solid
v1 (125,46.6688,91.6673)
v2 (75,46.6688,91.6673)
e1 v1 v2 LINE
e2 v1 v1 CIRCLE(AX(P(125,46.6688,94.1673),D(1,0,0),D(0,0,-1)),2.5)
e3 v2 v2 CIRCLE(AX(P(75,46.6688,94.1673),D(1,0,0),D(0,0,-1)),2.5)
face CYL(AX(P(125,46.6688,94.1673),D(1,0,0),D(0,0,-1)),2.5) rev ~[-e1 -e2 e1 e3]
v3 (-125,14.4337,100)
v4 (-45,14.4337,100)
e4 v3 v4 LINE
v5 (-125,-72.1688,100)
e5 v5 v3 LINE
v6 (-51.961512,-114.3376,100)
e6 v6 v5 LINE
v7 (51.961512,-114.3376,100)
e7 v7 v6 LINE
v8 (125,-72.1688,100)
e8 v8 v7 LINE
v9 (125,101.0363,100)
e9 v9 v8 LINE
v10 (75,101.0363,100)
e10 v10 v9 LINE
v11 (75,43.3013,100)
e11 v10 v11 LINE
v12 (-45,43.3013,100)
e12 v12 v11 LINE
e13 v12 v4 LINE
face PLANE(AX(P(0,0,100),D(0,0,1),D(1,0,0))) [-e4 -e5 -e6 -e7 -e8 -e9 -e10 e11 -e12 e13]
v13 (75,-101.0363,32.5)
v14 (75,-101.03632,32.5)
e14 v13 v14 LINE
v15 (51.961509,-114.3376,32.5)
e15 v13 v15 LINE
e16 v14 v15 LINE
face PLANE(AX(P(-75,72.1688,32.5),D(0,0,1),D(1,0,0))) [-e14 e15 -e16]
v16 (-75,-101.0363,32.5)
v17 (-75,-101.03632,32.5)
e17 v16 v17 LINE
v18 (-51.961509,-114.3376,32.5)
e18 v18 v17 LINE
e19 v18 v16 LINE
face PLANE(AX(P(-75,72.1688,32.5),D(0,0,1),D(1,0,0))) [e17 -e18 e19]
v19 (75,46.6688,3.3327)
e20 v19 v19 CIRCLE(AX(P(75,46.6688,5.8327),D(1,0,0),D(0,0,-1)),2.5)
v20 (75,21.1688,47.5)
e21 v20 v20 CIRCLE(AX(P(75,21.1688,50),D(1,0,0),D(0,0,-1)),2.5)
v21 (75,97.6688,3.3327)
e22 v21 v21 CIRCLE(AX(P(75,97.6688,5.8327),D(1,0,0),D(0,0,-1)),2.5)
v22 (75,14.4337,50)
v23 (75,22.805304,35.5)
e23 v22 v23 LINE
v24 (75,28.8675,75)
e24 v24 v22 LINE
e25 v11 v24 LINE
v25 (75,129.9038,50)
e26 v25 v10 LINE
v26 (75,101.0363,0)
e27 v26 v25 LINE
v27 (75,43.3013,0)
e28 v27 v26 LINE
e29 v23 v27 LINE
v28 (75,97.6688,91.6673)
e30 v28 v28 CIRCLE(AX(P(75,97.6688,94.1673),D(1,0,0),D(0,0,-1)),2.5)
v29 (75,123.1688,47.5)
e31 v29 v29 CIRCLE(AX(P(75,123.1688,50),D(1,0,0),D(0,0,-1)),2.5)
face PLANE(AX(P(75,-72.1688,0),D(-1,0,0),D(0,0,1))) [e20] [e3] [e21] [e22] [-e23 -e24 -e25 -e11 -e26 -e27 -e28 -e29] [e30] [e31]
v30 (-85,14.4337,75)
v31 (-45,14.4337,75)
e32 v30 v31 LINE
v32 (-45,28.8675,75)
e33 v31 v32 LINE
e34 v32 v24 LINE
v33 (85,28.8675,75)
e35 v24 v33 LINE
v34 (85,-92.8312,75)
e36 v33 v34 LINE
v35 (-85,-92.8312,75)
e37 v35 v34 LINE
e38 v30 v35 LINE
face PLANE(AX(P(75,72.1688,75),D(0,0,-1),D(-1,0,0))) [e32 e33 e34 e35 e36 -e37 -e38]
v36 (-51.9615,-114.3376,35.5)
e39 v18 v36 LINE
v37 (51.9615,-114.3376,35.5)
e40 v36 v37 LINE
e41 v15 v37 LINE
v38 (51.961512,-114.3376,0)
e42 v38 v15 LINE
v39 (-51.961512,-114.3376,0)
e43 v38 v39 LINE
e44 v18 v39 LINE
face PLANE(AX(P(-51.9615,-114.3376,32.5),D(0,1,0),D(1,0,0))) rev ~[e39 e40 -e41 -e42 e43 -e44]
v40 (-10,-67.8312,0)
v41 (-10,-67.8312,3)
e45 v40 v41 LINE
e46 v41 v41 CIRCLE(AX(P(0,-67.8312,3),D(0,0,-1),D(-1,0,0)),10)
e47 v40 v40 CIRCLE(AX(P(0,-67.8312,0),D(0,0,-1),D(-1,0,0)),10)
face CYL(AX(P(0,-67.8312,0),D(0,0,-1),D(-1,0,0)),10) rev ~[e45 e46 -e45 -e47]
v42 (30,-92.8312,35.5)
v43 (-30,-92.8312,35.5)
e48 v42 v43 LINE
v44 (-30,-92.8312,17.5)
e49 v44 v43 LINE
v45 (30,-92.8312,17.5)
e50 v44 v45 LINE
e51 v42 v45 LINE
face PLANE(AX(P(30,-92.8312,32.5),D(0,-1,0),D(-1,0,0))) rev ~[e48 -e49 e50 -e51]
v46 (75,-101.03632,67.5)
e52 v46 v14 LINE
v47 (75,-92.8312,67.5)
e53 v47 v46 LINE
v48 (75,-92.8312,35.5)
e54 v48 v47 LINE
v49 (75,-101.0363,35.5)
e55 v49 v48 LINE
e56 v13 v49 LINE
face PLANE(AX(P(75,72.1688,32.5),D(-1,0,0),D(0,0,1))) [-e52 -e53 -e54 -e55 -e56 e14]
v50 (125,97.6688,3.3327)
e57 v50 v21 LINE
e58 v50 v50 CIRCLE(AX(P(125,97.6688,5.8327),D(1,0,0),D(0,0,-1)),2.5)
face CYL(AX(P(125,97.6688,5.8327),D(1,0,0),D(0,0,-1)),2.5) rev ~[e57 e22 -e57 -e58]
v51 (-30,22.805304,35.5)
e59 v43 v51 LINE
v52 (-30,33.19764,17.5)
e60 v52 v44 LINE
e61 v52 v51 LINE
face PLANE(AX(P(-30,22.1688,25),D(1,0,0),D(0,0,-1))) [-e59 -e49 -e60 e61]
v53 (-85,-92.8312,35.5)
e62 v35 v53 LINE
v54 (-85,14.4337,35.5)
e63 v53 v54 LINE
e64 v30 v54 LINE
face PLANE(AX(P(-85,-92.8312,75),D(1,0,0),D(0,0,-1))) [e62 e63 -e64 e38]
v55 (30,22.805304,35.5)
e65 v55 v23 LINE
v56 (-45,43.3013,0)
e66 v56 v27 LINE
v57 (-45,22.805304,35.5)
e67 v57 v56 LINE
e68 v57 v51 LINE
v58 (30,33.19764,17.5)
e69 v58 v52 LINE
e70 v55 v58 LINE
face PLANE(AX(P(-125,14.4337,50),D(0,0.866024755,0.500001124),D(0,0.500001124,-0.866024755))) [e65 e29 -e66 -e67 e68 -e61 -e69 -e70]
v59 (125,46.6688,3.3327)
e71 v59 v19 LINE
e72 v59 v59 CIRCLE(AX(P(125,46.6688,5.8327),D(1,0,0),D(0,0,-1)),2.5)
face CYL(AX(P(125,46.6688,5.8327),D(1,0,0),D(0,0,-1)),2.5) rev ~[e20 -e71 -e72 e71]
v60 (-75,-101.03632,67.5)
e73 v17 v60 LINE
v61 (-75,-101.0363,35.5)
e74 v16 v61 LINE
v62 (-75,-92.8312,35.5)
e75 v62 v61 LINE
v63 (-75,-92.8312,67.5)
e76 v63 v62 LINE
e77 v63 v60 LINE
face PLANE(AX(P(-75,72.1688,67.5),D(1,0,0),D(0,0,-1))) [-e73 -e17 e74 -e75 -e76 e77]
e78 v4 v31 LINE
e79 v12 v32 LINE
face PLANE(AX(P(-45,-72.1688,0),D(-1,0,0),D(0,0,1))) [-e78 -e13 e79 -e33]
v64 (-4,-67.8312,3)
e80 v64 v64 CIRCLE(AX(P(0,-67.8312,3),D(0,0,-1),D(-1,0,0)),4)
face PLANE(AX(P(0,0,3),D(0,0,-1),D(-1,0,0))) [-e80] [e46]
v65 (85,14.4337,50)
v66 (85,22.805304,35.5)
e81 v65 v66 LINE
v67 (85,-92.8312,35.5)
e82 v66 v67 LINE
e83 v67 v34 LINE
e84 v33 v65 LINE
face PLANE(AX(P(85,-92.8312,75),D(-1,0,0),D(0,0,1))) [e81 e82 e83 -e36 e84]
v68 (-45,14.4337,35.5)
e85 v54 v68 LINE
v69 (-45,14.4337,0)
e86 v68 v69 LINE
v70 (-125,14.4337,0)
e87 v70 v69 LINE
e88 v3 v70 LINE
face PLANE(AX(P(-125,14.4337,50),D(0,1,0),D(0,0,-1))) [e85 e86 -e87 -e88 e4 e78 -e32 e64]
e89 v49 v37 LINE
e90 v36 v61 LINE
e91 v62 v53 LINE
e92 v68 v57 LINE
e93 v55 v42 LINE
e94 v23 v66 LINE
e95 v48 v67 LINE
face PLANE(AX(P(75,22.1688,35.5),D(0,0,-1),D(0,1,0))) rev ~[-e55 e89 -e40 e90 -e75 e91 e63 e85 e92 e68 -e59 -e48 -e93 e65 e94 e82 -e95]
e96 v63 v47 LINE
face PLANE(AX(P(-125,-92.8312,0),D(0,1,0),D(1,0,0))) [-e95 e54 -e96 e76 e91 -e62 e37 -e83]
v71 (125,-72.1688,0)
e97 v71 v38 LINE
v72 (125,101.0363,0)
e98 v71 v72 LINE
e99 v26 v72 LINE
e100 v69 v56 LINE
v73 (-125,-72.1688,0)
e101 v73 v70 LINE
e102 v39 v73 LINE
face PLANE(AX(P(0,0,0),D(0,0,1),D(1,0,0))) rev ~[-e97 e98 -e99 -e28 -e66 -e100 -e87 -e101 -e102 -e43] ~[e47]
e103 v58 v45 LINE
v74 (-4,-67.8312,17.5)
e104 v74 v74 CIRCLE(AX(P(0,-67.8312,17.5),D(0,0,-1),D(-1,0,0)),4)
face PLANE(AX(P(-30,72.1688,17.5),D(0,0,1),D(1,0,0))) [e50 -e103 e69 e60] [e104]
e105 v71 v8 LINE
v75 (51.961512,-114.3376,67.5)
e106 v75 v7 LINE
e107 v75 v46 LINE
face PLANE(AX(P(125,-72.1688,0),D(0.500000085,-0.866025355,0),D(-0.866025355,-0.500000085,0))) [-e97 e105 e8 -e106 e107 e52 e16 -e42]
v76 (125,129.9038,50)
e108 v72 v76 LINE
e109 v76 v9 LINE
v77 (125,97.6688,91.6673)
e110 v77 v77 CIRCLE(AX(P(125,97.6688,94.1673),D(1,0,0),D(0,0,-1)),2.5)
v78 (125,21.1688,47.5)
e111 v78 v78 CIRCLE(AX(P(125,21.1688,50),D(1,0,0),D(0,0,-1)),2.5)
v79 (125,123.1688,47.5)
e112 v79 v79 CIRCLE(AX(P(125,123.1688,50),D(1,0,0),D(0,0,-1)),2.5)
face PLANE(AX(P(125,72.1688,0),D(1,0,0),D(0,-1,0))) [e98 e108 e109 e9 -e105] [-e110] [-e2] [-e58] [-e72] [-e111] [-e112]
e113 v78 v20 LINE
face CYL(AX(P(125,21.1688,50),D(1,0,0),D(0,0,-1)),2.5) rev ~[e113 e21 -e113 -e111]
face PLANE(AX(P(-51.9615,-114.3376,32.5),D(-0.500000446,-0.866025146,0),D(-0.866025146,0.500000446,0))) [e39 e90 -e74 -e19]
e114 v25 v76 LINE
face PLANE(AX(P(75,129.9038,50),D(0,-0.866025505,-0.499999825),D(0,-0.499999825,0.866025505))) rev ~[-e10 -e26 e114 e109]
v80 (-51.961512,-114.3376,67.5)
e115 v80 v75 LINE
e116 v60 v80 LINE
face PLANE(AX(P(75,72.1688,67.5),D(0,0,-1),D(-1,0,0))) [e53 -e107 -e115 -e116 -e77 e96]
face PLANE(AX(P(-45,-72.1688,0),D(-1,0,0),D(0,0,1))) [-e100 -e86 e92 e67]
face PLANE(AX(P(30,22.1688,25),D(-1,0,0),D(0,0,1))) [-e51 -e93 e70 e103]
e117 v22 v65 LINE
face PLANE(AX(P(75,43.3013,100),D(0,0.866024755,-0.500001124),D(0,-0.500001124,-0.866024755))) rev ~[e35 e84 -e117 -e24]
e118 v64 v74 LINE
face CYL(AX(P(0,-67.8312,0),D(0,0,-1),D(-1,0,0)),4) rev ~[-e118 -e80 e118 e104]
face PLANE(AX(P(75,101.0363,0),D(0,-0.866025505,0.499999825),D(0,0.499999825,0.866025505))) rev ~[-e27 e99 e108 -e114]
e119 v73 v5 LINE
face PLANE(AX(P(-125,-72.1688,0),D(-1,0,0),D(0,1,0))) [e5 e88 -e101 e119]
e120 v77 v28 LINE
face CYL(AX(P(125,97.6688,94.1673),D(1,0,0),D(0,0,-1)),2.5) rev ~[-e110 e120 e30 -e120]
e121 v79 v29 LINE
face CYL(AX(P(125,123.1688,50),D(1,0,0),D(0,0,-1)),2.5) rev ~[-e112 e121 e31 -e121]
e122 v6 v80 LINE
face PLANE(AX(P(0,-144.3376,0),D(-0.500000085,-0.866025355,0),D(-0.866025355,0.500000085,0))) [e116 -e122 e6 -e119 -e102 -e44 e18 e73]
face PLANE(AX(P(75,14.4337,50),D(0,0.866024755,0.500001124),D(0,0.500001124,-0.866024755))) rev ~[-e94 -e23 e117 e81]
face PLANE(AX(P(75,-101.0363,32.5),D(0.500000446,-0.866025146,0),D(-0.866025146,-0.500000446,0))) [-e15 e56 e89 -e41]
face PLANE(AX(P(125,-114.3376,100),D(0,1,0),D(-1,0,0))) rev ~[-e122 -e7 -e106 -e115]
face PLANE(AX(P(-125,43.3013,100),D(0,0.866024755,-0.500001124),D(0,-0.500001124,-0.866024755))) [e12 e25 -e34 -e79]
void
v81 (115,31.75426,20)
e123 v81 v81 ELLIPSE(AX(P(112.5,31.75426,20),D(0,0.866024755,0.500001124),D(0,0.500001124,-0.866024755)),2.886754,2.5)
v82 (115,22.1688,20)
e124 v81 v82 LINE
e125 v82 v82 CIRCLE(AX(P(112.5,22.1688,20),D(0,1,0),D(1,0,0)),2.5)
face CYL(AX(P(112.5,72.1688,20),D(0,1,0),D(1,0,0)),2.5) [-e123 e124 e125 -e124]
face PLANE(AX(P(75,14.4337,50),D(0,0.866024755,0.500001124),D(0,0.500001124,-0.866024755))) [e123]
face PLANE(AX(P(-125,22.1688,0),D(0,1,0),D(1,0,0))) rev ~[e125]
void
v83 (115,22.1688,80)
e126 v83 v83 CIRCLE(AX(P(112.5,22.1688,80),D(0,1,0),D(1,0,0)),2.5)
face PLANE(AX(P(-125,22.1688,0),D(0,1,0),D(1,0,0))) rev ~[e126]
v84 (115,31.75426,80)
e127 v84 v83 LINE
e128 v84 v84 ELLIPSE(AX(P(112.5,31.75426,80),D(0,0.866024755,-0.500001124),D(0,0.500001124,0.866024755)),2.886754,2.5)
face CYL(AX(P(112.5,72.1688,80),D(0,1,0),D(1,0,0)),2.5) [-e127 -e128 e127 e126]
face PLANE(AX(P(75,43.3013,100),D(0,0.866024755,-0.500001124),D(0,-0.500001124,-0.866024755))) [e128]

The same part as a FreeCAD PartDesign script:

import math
import FreeCAD as App
import Part
import Sketcher
Q = App.Units.Quantity

doc = App.newDocument("Part")
body = doc.addObject("PartDesign::Body", "Body")

# Sketch on XY plane
sketch1 = doc.addObject("Sketcher::SketchObject", "Sketch")
body.addObject(sketch1)
sketch1.AttachmentSupport = (doc.XY_Plane, [""])
sketch1.MapMode = "FlatFace"
sketch1.addGeometry([
    Part.LineSegment(App.Vector(-125, -72, 0), App.Vector(0, -144, 0)),  # 0
    Part.LineSegment(App.Vector(0, -144, 0), App.Vector(125, -72, 0)),  # 1
    Part.LineSegment(App.Vector(125, -72, 0), App.Vector(125, 72, 0)),  # 2
    Part.LineSegment(App.Vector(125, 72, 0), App.Vector(-125, 72, 0)),  # 3
    Part.LineSegment(App.Vector(-125, 72, 0), App.Vector(-125, -72, 0)),  # 4
], False)
sketch1.addConstraint([
    Sketcher.Constraint("Coincident", 0, 2, 1, 1),
    Sketcher.Constraint("Coincident", 1, 2, 2, 1),
    Sketcher.Constraint("Coincident", 2, 2, 3, 1),
    Sketcher.Constraint("Coincident", 3, 2, 4, 1),
    Sketcher.Constraint("Coincident", 4, 2, 0, 1),
    Sketcher.Constraint("Vertical", 2),
    Sketcher.Constraint("Horizontal", 3),
    Sketcher.Constraint("Vertical", 4),
    Sketcher.Constraint("Symmetric", 1, 2, 3, 2, -1, 1),
    Sketcher.Constraint("PointOnObject", 0, 2, -2),
    Sketcher.Constraint("Horizontal", 1, 2, 4, 2),
    Sketcher.Constraint("DistanceX", 3, 2, 3, 1, 250.0),
    Sketcher.Constraint("Angle", 0, Q("-30 deg")),
    Sketcher.Constraint("DistanceY", 2, 1, 2, 2, 144.3376),
])
pad1 = doc.addObject("PartDesign::Pad", "Pad")
body.addObject(pad1)
pad1.Profile = sketch1
pad1.Length = 100

# Sketch on XZ plane
sketch2 = doc.addObject("Sketcher::SketchObject", "Sketch001")
body.addObject(sketch2)
sketch2.AttachmentSupport = (doc.XZ_Plane, [""])
sketch2.MapMode = "FlatFace"
sketch2.AttachmentOffset = App.Placement(App.Vector(0, 0, -72.1688), App.Rotation())
sketch2.addGeometry([
    Part.LineSegment(App.Vector(-75, 68, 0), App.Vector(75, 68, 0)),
    Part.LineSegment(App.Vector(75, 68, 0), App.Vector(75, 32, 0)),
    Part.LineSegment(App.Vector(75, 32, 0), App.Vector(-75, 32, 0)),
    Part.LineSegment(App.Vector(-75, 32, 0), App.Vector(-75, 68, 0)),
], False)
sketch2.addConstraint([
    Sketcher.Constraint("Coincident", 0, 2, 1, 1),
    Sketcher.Constraint("Coincident", 1, 2, 2, 1),
    Sketcher.Constraint("Coincident", 2, 2, 3, 1),
    Sketcher.Constraint("Coincident", 3, 2, 0, 1),
    Sketcher.Constraint("Horizontal", 0),
    Sketcher.Constraint("Vertical", 1),
    Sketcher.Constraint("Horizontal", 2),
    Sketcher.Constraint("Vertical", 3),
    Sketcher.Constraint("DistanceX", 0, 1, 0, 2, 150.0),
    Sketcher.Constraint("DistanceY", 1, 2, 1, 1, 35.0),
    Sketcher.Constraint("DistanceX", -1, 1, 0, 2, 75.0),
    Sketcher.Constraint("DistanceY", -1, 1, 0, 2, 67.5),
])
pocket1 = doc.addObject("PartDesign::Pocket", "Pocket")
body.addObject(pocket1)
pocket1.Profile = sketch2
pocket1.Type = "ThroughAll"
pocket1.Reversed = True

# Sketch on XY plane
sketch3 = doc.addObject("Sketcher::SketchObject", "Sketch002")
body.addObject(sketch3)
sketch3.AttachmentSupport = (doc.XY_Plane, [""])
sketch3.MapMode = "FlatFace"
sketch3.AttachmentOffset = App.Placement(App.Vector(0, 0, 100), App.Rotation())
sketch3.addGeometry([
    Part.LineSegment(App.Vector(125, -144, 0), App.Vector(125, -114, 0)),
    Part.LineSegment(App.Vector(125, -114, 0), App.Vector(-125, -114, 0)),
    Part.LineSegment(App.Vector(-125, -114, 0), App.Vector(-125, -144, 0)),
    Part.LineSegment(App.Vector(-125, -144, 0), App.Vector(125, -144, 0)),
], False)
sketch3.addConstraint([
    Sketcher.Constraint("Coincident", 0, 2, 1, 1),
    Sketcher.Constraint("Coincident", 1, 2, 2, 1),
    Sketcher.Constraint("Coincident", 2, 2, 3, 1),
    Sketcher.Constraint("Coincident", 3, 2, 0, 1),
    Sketcher.Constraint("Vertical", 0),
    Sketcher.Constraint("Horizontal", 1),
    Sketcher.Constraint("Vertical", 2),
    Sketcher.Constraint("Horizontal", 3),
    Sketcher.Constraint("DistanceY", 0, 1, 0, 2, 30.0),
    Sketcher.Constraint("DistanceX", 1, 2, 1, 1, 250.0),
    Sketcher.Constraint("DistanceX", -1, 1, 0, 2, 125.0),
    Sketcher.Constraint("DistanceY", 0, 2, -1, 1, 114.3376),
])
pocket2 = doc.addObject("PartDesign::Pocket", "Pocket001")
body.addObject(pocket2)
pocket2.Profile = sketch3
pocket2.Type = "ThroughAll"

# Sketch on YZ plane
sketch4 = doc.addObject("Sketcher::SketchObject", "Sketch003")
body.addObject(sketch4)
sketch4.AttachmentSupport = (doc.YZ_Plane, [""])
sketch4.MapMode = "FlatFace"
sketch4.AttachmentOffset = App.Placement(App.Vector(0, 0, 125), App.Rotation())
sketch4.addGeometry(Part.Circle(App.Vector(47.2, 50, 0), App.Vector(0, 0, 1), 3), False)
sketch4.addConstraint([
    Sketcher.Constraint("Diameter", 0, 6.0),
    Sketcher.Constraint("DistanceY", -1, 1, 0, 3, 50.0),
    Sketcher.Constraint("DistanceX", -1, 1, 0, 3, 47.1688),
])
pocket3 = doc.addObject("PartDesign::Pocket", "Pocket002")
body.addObject(pocket3)
pocket3.Profile = sketch4
pocket3.Type = "ThroughAll"

# Sketch on YZ plane
sketch5 = doc.addObject("Sketcher::SketchObject", "Sketch004")
body.addObject(sketch5)
sketch5.AttachmentSupport = (doc.YZ_Plane, [""])
sketch5.MapMode = "FlatFace"
sketch5.AttachmentOffset = App.Placement(App.Vector(0, 0, -125), App.Rotation())
sketch5.addGeometry([
    Part.Circle(App.Vector(47.2, 50, 0), App.Vector(0, 0, 1), 6),  # 0
    Part.Circle(App.Vector(40.2, 65.5, 0), App.Vector(0, 0, 1), 1.5),  # 1
    Part.Circle(App.Vector(53.6, 57.8, 0), App.Vector(0, 0, 1), 1.5),  # 2
    Part.Circle(App.Vector(53.6, 42.2, 0), App.Vector(0, 0, 1), 1.5),  # 3
    Part.Circle(App.Vector(40.2, 34.5, 0), App.Vector(0, 0, 1), 1.5),  # 4
    Part.Circle(App.Vector(26.7, 42.2, 0), App.Vector(0, 0, 1), 1.5),  # 5
    Part.Circle(App.Vector(26.7, 57.8, 0), App.Vector(0, 0, 1), 1.5),  # 6
], False)
sketch5.addConstraint([
    Sketcher.Constraint("Equal", 1, 2),
    Sketcher.Constraint("Equal", 2, 3),
    Sketcher.Constraint("Equal", 3, 4),
    Sketcher.Constraint("Equal", 4, 5),
    Sketcher.Constraint("Equal", 5, 6),
    Sketcher.Constraint("Horizontal", 3, 3, 5, 3),
    Sketcher.Constraint("Horizontal", 2, 3, 6, 3),
    Sketcher.Constraint("Vertical", 2, 3, 3, 3),
    Sketcher.Constraint("Vertical", 1, 3, 4, 3),
    Sketcher.Constraint("Vertical", 5, 3, 6, 3),
    Sketcher.Constraint("Diameter", 0, 12.0),
    Sketcher.Constraint("Diameter", 1, 3.0),
    Sketcher.Constraint("DistanceX", 1, 3, 0, 3, 7.0),
    Sketcher.Constraint("DistanceY", 0, 3, 1, 3, 15.5),
    Sketcher.Constraint("DistanceY", 3, 3, 2, 3, 15.5),
    Sketcher.Constraint("DistanceY", 4, 3, 0, 3, 15.5),
    Sketcher.Constraint("DistanceY", -1, 1, 0, 3, 50.0),
    Sketcher.Constraint("DistanceY", -1, 1, 2, 3, 57.75),
    Sketcher.Constraint("DistanceX", -1, 1, 0, 3, 47.1688),
    Sketcher.Constraint("DistanceX", -1, 1, 2, 3, 53.5922),
    Sketcher.Constraint("DistanceX", -1, 1, 5, 3, 26.7454),
])
pocket4 = doc.addObject("PartDesign::Pocket", "Pocket003")
body.addObject(pocket4)
pocket4.Profile = sketch5
pocket4.Length = 75
pocket4.Reversed = True

# Sketch on YZ plane
sketch6 = doc.addObject("Sketcher::SketchObject", "Sketch005")
body.addObject(sketch6)
sketch6.AttachmentSupport = (doc.YZ_Plane, [""])
sketch6.MapMode = "FlatFace"
sketch6.AttachmentOffset = App.Placement(App.Vector(0, 0, -75), App.Rotation())
sketch6.addGeometry(Part.Circle(App.Vector(40, 50, 0), App.Vector(0, 0, 1), 20), False)
sketch6.addConstraint([
    Sketcher.Constraint("Diameter", 0, 40.0),
    Sketcher.Constraint("DistanceY", -1, 1, 0, 3, 50.0),
    Sketcher.Constraint("DistanceX", -1, 1, 0, 3, 40.1688),
])
pocket5 = doc.addObject("PartDesign::Pocket", "Pocket004")
body.addObject(pocket5)
pocket5.Profile = sketch6
pocket5.Type = "TwoLengths"
pocket5.Length = 150
pocket5.Length2 = 45
pocket5.Reversed = True

# Sketch on XZ plane
sketch7 = doc.addObject("Sketcher::SketchObject", "Sketch006")
body.addObject(sketch7)
sketch7.AttachmentSupport = (doc.XZ_Plane, [""])
sketch7.MapMode = "FlatFace"
sketch7.AttachmentOffset = App.Placement(App.Vector(0, 0, -72.1688), App.Rotation())
sketch7.addGeometry([
    Part.LineSegment(App.Vector(75, 25, 0), App.Vector(-75, 25, 0)),
    Part.LineSegment(App.Vector(-75, 25, 0), App.Vector(-75, 75, 0)),
    Part.LineSegment(App.Vector(-75, 75, 0), App.Vector(75, 75, 0)),
    Part.LineSegment(App.Vector(75, 75, 0), App.Vector(75, 25, 0)),
], False)
sketch7.addConstraint([
    Sketcher.Constraint("Coincident", 0, 2, 1, 1),
    Sketcher.Constraint("Coincident", 1, 2, 2, 1),
    Sketcher.Constraint("Coincident", 2, 2, 3, 1),
    Sketcher.Constraint("Coincident", 3, 2, 0, 1),
    Sketcher.Constraint("Horizontal", 0),
    Sketcher.Constraint("Vertical", 1),
    Sketcher.Constraint("Horizontal", 2),
    Sketcher.Constraint("Vertical", 3),
    Sketcher.Constraint("DistanceY", 1, 1, 1, 2, 50.0),
    Sketcher.Constraint("DistanceX", 0, 2, 0, 1, 150.0),
    Sketcher.Constraint("DistanceX", 0, 2, -1, 1, 75.0),
    Sketcher.Constraint("DistanceY", -1, 1, 0, 2, 25.0),
])
pocket6 = doc.addObject("PartDesign::Pocket", "Pocket005")
body.addObject(pocket6)
pocket6.Profile = sketch7
pocket6.Length = 50
pocket6.Reversed = True

# Sketch on XZ plane
sketch8 = doc.addObject("Sketcher::SketchObject", "Sketch007")
body.addObject(sketch8)
sketch8.AttachmentSupport = (doc.XZ_Plane, [""])
sketch8.MapMode = "FlatFace"
sketch8.AttachmentOffset = App.Placement(App.Vector(0, 0, -72.1688), App.Rotation())
sketch8.addGeometry([
    Part.Circle(App.Vector(-112.5, 20, 0), App.Vector(0, 0, 1), 2.5),
    Part.Circle(App.Vector(-112.5, 80, 0), App.Vector(0, 0, 1), 2.5),
    Part.Circle(App.Vector(112.5, 80, 0), App.Vector(0, 0, 1), 2.5),
    Part.Circle(App.Vector(112.5, 20, 0), App.Vector(0, 0, 1), 2.5),
], False)
sketch8.addConstraint([
    Sketcher.Constraint("Equal", 0, 1),
    Sketcher.Constraint("Equal", 1, 2),
    Sketcher.Constraint("Equal", 2, 3),
    Sketcher.Constraint("Symmetric", 1, 3, 2, 3, -2),
    Sketcher.Constraint("Symmetric", 0, 3, 3, 3, -2),
    Sketcher.Constraint("Vertical", 0, 3, 1, 3),
    Sketcher.Constraint("Diameter", 0, 5.0),
    Sketcher.Constraint("DistanceY", 0, 3, 1, 3, 60.0),
    Sketcher.Constraint("DistanceX", 1, 3, 2, 3, 225.0),
    Sketcher.Constraint("DistanceY", -1, 1, 0, 3, 20.0),
])
pocket7 = doc.addObject("PartDesign::Pocket", "Pocket006")
body.addObject(pocket7)
pocket7.Profile = sketch8
pocket7.Length = 50
pocket7.Reversed = True

# Sketch on YZ plane
sketch9 = doc.addObject("Sketcher::SketchObject", "Sketch008")
body.addObject(sketch9)
sketch9.AttachmentSupport = (doc.YZ_Plane, [""])
sketch9.MapMode = "FlatFace"
sketch9.AttachmentOffset = App.Placement(App.Vector(0, 0, -125), App.Rotation())
sketch9.addGeometry([
    Part.Circle(App.Vector(40.2, 34.5, 0), App.Vector(0, 0, 1), 4),  # 0
    Part.Circle(App.Vector(26.7, 42.2, 0), App.Vector(0, 0, 1), 4),  # 1
    Part.Circle(App.Vector(26.7, 57.8, 0), App.Vector(0, 0, 1), 4),  # 2
    Part.Circle(App.Vector(40.2, 65.5, 0), App.Vector(0, 0, 1), 4),  # 3
    Part.Circle(App.Vector(53.6, 57.8, 0), App.Vector(0, 0, 1), 4),  # 4
    Part.Circle(App.Vector(53.6, 42.2, 0), App.Vector(0, 0, 1), 4),  # 5
], False)
sketch9.addConstraint([
    Sketcher.Constraint("Equal", 0, 1),
    Sketcher.Constraint("Equal", 1, 2),
    Sketcher.Constraint("Equal", 2, 3),
    Sketcher.Constraint("Equal", 3, 4),
    Sketcher.Constraint("Equal", 4, 5),
    Sketcher.Constraint("Horizontal", 2, 3, 4, 3),
    Sketcher.Constraint("Horizontal", 1, 3, 5, 3),
    Sketcher.Constraint("Vertical", 1, 3, 2, 3),
    Sketcher.Constraint("Vertical", 0, 3, 3, 3),
    Sketcher.Constraint("Vertical", 4, 3, 5, 3),
    Sketcher.Constraint("Diameter", 0, 8.0),
    Sketcher.Constraint("DistanceY", 0, 3, 3, 3, 31.0),
    Sketcher.Constraint("DistanceY", -1, 1, 0, 3, 34.5),
    Sketcher.Constraint("DistanceY", 1, 3, 2, 3, 15.5),
    Sketcher.Constraint("DistanceY", -1, 1, 1, 3, 42.25),
    Sketcher.Constraint("DistanceX", -1, 1, 0, 3, 40.1688),
    Sketcher.Constraint("DistanceX", -1, 1, 1, 3, 26.7454),
    Sketcher.Constraint("DistanceX", -1, 1, 4, 3, 53.5922),
])
pocket8 = doc.addObject("PartDesign::Pocket", "Pocket007")
body.addObject(pocket8)
pocket8.Profile = sketch9
pocket8.Length = 3
pocket8.Reversed = True

# Sketch on YZ plane
sketch10 = doc.addObject("Sketcher::SketchObject", "Sketch009")
body.addObject(sketch10)
sketch10.AttachmentSupport = (doc.YZ_Plane, [""])
sketch10.MapMode = "FlatFace"
sketch10.AttachmentOffset = App.Placement(App.Vector(0, 0, -120), App.Rotation())
sketch10.addGeometry([
    Part.Circle(App.Vector(40.2, 50, 0), App.Vector(0, 0, 1), 20),  # 0
    Part.Circle(App.Vector(26.7, 57.8, 0), App.Vector(0, 0, 1), 1.5),  # 1
    Part.Circle(App.Vector(26.7, 42.2, 0), App.Vector(0, 0, 1), 1.5),  # 2
    Part.Circle(App.Vector(40.2, 65.5, 0), App.Vector(0, 0, 1), 1.5),  # 3
    Part.Circle(App.Vector(53.6, 57.8, 0), App.Vector(0, 0, 1), 1.5),  # 4
    Part.Circle(App.Vector(47.2, 50, 0), App.Vector(0, 0, 1), 6),  # 5
    Part.Circle(App.Vector(40.2, 34.5, 0), App.Vector(0, 0, 1), 1.5),  # 6
    Part.Circle(App.Vector(53.6, 42.2, 0), App.Vector(0, 0, 1), 1.5),  # 7
], False)
sketch10.addConstraint([
    Sketcher.Constraint("Equal", 1, 2),
    Sketcher.Constraint("Equal", 2, 3),
    Sketcher.Constraint("Equal", 3, 4),
    Sketcher.Constraint("Equal", 4, 6),
    Sketcher.Constraint("Equal", 6, 7),
    Sketcher.Constraint("Horizontal", 1, 3, 4, 3),
    Sketcher.Constraint("Horizontal", 0, 3, 5, 3),
    Sketcher.Constraint("Horizontal", 2, 3, 7, 3),
    Sketcher.Constraint("Vertical", 1, 3, 2, 3),
    Sketcher.Constraint("Vertical", 0, 3, 3, 3),
    Sketcher.Constraint("Vertical", 3, 3, 6, 3),
    Sketcher.Constraint("Vertical", 4, 3, 7, 3),
    Sketcher.Constraint("Diameter", 0, 40.0),
    Sketcher.Constraint("Diameter", 1, 3.0),
    Sketcher.Constraint("Diameter", 5, 12.0),
    Sketcher.Constraint("DistanceY", -1, 1, 0, 3, 50.0),
    Sketcher.Constraint("DistanceX", 0, 3, 5, 3, 7.0),
    Sketcher.Constraint("DistanceY", -1, 1, 3, 3, 65.5),
    Sketcher.Constraint("DistanceY", -1, 1, 6, 3, 34.5),
    Sketcher.Constraint("DistanceY", 2, 3, 1, 3, 15.5),
    Sketcher.Constraint("DistanceY", -1, 1, 1, 3, 57.75),
    Sketcher.Constraint("DistanceX", -1, 1, 0, 3, 40.1688),
    Sketcher.Constraint("DistanceX", -1, 1, 1, 3, 26.7454),
    Sketcher.Constraint("DistanceX", -1, 1, 4, 3, 53.5922),
])
pad2 = doc.addObject("PartDesign::Pad", "Pad001")
body.addObject(pad2)
pad2.Profile = sketch10
pad2.Length = 5

# Sketch on XZ plane
sketch11 = doc.addObject("Sketcher::SketchObject", "Sketch010")
body.addObject(sketch11)
sketch11.AttachmentSupport = (doc.XZ_Plane, [""])
sketch11.MapMode = "FlatFace"
sketch11.AttachmentOffset = App.Placement(App.Vector(0, 0, -72.1688), App.Rotation())
sketch11.addGeometry([
    Part.LineSegment(App.Vector(85, 75, 0), App.Vector(85, 40, 0)),  # 0
    Part.LineSegment(App.Vector(85, 40, 0), App.Vector(30, 40, 0)),  # 1
    Part.LineSegment(App.Vector(30, 40, 0), App.Vector(30, 18, 0)),  # 2
    Part.LineSegment(App.Vector(30, 18, 0), App.Vector(-30, 18, 0)),  # 3
    Part.LineSegment(App.Vector(-30, 18, 0), App.Vector(-30, 40, 0)),  # 4
    Part.LineSegment(App.Vector(-30, 40, 0), App.Vector(-85, 40, 0)),  # 5
    Part.LineSegment(App.Vector(-85, 40, 0), App.Vector(-85, 75, 0)),  # 6
    Part.LineSegment(App.Vector(-85, 75, 0), App.Vector(85, 75, 0)),  # 7
], False)
sketch11.addConstraint([
    Sketcher.Constraint("Coincident", 0, 2, 1, 1),
    Sketcher.Constraint("Coincident", 1, 2, 2, 1),
    Sketcher.Constraint("Coincident", 2, 2, 3, 1),
    Sketcher.Constraint("Coincident", 3, 2, 4, 1),
    Sketcher.Constraint("Coincident", 4, 2, 5, 1),
    Sketcher.Constraint("Coincident", 5, 2, 6, 1),
    Sketcher.Constraint("Coincident", 6, 2, 7, 1),
    Sketcher.Constraint("Coincident", 7, 2, 0, 1),
    Sketcher.Constraint("Vertical", 0),
    Sketcher.Constraint("Horizontal", 1),
    Sketcher.Constraint("Vertical", 2),
    Sketcher.Constraint("Horizontal", 3),
    Sketcher.Constraint("Vertical", 4),
    Sketcher.Constraint("Horizontal", 5),
    Sketcher.Constraint("Vertical", 6),
    Sketcher.Constraint("Horizontal", 7),
    Sketcher.Constraint("Symmetric", 1, 2, 4, 2, -2),
    Sketcher.Constraint("Equal", 1, 5),
    Sketcher.Constraint("DistanceX", 3, 2, 3, 1, 60.0),
    Sketcher.Constraint("DistanceX", 7, 1, 7, 2, 170.0),
    Sketcher.Constraint("DistanceY", 0, 2, 0, 1, 35.0),
    Sketcher.Constraint("DistanceY", 2, 2, 2, 1, 22.5),
    Sketcher.Constraint("DistanceY", -1, 1, 0, 2, 40.0),
])
pocket9 = doc.addObject("PartDesign::Pocket", "Pocket008")
body.addObject(pocket9)
pocket9.Profile = sketch11
pocket9.Length = 165
pocket9.Reversed = True

# Sketch on XY plane
sketch12 = doc.addObject("Sketcher::SketchObject", "Sketch011")
body.addObject(sketch12)
sketch12.AttachmentSupport = (doc.XY_Plane, [""])
sketch12.MapMode = "FlatFace"
sketch12.addGeometry(Part.Circle(App.Vector(0, -67.8, 0), App.Vector(0, 0, 1), 4), False)
sketch12.addConstraint([
    Sketcher.Constraint("PointOnObject", 0, 3, -2),
    Sketcher.Constraint("Diameter", 0, 8.0),
    Sketcher.Constraint("DistanceY", 0, 3, -1, 1, 67.8312),
])
pocket10 = doc.addObject("PartDesign::Pocket", "Pocket009")
body.addObject(pocket10)
pocket10.Profile = sketch12
pocket10.Length = 25
pocket10.Reversed = True

# Sketch on XY plane
sketch13 = doc.addObject("Sketcher::SketchObject", "Sketch012")
body.addObject(sketch13)
sketch13.AttachmentSupport = (doc.XY_Plane, [""])
sketch13.MapMode = "FlatFace"
sketch13.AttachmentOffset = App.Placement(App.Vector(0, 0, 32.5), App.Rotation())
sketch13.addGeometry([
    Part.LineSegment(App.Vector(30, -93, 0), App.Vector(-30, -93, 0)),  # 0
    Part.LineSegment(App.Vector(-30, -93, 0), App.Vector(-30, 22, 0)),  # 1
    Part.LineSegment(App.Vector(-30, 22, 0), App.Vector(-75, 22, 0)),  # 2
    Part.LineSegment(App.Vector(-75, 22, 0), App.Vector(-75, -101, 0)),  # 3
    Part.LineSegment(App.Vector(-75, -101, 0), App.Vector(-52, -114, 0)),  # 4
    Part.LineSegment(App.Vector(-52, -114, 0), App.Vector(52, -114, 0)),  # 5
    Part.LineSegment(App.Vector(52, -114, 0), App.Vector(75, -101, 0)),  # 6
    Part.LineSegment(App.Vector(75, -101, 0), App.Vector(75, 22, 0)),  # 7
    Part.LineSegment(App.Vector(75, 22, 0), App.Vector(30, 22, 0)),  # 8
    Part.LineSegment(App.Vector(30, 22, 0), App.Vector(30, -93, 0)),  # 9
], False)
sketch13.addConstraint([
    Sketcher.Constraint("Coincident", 0, 2, 1, 1),
    Sketcher.Constraint("Coincident", 1, 2, 2, 1),
    Sketcher.Constraint("Coincident", 2, 2, 3, 1),
    Sketcher.Constraint("Coincident", 3, 2, 4, 1),
    Sketcher.Constraint("Coincident", 4, 2, 5, 1),
    Sketcher.Constraint("Coincident", 5, 2, 6, 1),
    Sketcher.Constraint("Coincident", 6, 2, 7, 1),
    Sketcher.Constraint("Coincident", 7, 2, 8, 1),
    Sketcher.Constraint("Coincident", 8, 2, 9, 1),
    Sketcher.Constraint("Coincident", 9, 2, 0, 1),
    Sketcher.Constraint("Horizontal", 0),
    Sketcher.Constraint("Vertical", 1),
    Sketcher.Constraint("Horizontal", 2),
    Sketcher.Constraint("Vertical", 3),
    Sketcher.Constraint("Horizontal", 5),
    Sketcher.Constraint("Vertical", 7),
    Sketcher.Constraint("Horizontal", 8),
    Sketcher.Constraint("Vertical", 9),
    Sketcher.Constraint("Symmetric", 3, 2, 6, 2, -2),
    Sketcher.Constraint("Symmetric", 1, 2, 8, 2, -2),
    Sketcher.Constraint("Equal", 4, 6),
    Sketcher.Constraint("DistanceX", 0, 2, 0, 1, 60.0),
    Sketcher.Constraint("DistanceX", 2, 2, 2, 1, 45.0),
    Sketcher.Constraint("DistanceY", 1, 1, 1, 2, 115.0),
    Sketcher.Constraint("Angle", 4, Q("-30 deg")),
    Sketcher.Constraint("DistanceX", 5, 1, 5, 2, 103.923),
    Sketcher.Constraint("DistanceY", 3, 2, 3, 1, 123.205),
    Sketcher.Constraint("DistanceY", 0, 2, -1, 1, 92.8312),
])
pad3 = doc.addObject("PartDesign::Pad", "Pad002")
body.addObject(pad3)
pad3.Profile = sketch13
pad3.Length = 3

# Sketch on YZ plane
sketch14 = doc.addObject("Sketcher::SketchObject", "Sketch013")
body.addObject(sketch14)
sketch14.AttachmentSupport = (doc.YZ_Plane, [""])
sketch14.MapMode = "FlatFace"
sketch14.AttachmentOffset = App.Placement(App.Vector(0, 0, -75), App.Rotation())
sketch14.addGeometry([
    Part.LineSegment(App.Vector(26.4, 35.5, 0), App.Vector(22.2, 35.5, 0)),  # 0
    Part.LineSegment(App.Vector(22.2, 35.5, 0), App.Vector(22.2, 25, 0)),  # 1
    Part.LineSegment(App.Vector(22.2, 25, 0), App.Vector(72.2, 25, 0)),  # 2
    Part.LineSegment(App.Vector(72.2, 25, 0), App.Vector(72.2, 35.5, 0)),  # 3
    Part.LineSegment(App.Vector(72.2, 35.5, 0), App.Vector(53.9, 35.5, 0)),  # 4
    Part.ArcOfCircle(Part.Circle(App.Vector(40.2, 50, 0), App.Vector(0, 0, 1), 20), math.radians(-134), math.radians(-46)),  # 5
], False)
sketch14.addConstraint([
    Sketcher.Constraint("Coincident", 0, 2, 1, 1),
    Sketcher.Constraint("Coincident", 1, 2, 2, 1),
    Sketcher.Constraint("Coincident", 2, 2, 3, 1),
    Sketcher.Constraint("Coincident", 3, 2, 4, 1),
    Sketcher.Constraint("Coincident", 4, 2, 5, 2),
    Sketcher.Constraint("Coincident", 5, 1, 0, 1),
    Sketcher.Constraint("Horizontal", 0),
    Sketcher.Constraint("Vertical", 1),
    Sketcher.Constraint("Horizontal", 2),
    Sketcher.Constraint("Vertical", 3),
    Sketcher.Constraint("Horizontal", 4),
    Sketcher.Constraint("Horizontal", 0, 2, 3, 2),
    Sketcher.Constraint("Radius", 5, 20.0),
    Sketcher.Constraint("DistanceX", 2, 1, 2, 2, 50.0),
    Sketcher.Constraint("DistanceY", 1, 2, 1, 1, 10.5),
    Sketcher.Constraint("DistanceY", -1, 1, 5, 3, 50.0),
    Sketcher.Constraint("DistanceY", -1, 1, 1, 2, 25.0),
    Sketcher.Constraint("DistanceX", 0, 2, 5, 3, 18.0),
    Sketcher.Constraint("DistanceX", -1, 1, 5, 3, 40.1688),
])
pad4 = doc.addObject("PartDesign::Pad", "Pad003")
body.addObject(pad4)
pad4.Profile = sketch14
pad4.Length = 45

# Sketch on YZ plane
sketch15 = doc.addObject("Sketcher::SketchObject", "Sketch014")
body.addObject(sketch15)
sketch15.AttachmentSupport = (doc.YZ_Plane, [""])
sketch15.MapMode = "FlatFace"
sketch15.AttachmentOffset = App.Placement(App.Vector(0, 0, 75), App.Rotation())
sketch15.addGeometry([
    Part.LineSegment(App.Vector(72, 25, 0), App.Vector(22, 25, 0)),
    Part.LineSegment(App.Vector(22, 25, 0), App.Vector(22, 36, 0)),
    Part.LineSegment(App.Vector(22, 36, 0), App.Vector(72, 36, 0)),
    Part.LineSegment(App.Vector(72, 36, 0), App.Vector(72, 25, 0)),
], False)
sketch15.addConstraint([
    Sketcher.Constraint("Coincident", 0, 2, 1, 1),
    Sketcher.Constraint("Coincident", 1, 2, 2, 1),
    Sketcher.Constraint("Coincident", 2, 2, 3, 1),
    Sketcher.Constraint("Coincident", 3, 2, 0, 1),
    Sketcher.Constraint("Horizontal", 0),
    Sketcher.Constraint("Vertical", 1),
    Sketcher.Constraint("Horizontal", 2),
    Sketcher.Constraint("Vertical", 3),
    Sketcher.Constraint("DistanceX", 0, 2, 0, 1, 50.0),
    Sketcher.Constraint("DistanceY", 1, 1, 1, 2, 10.5),
    Sketcher.Constraint("DistanceY", -1, 1, 0, 2, 25.0),
    Sketcher.Constraint("DistanceX", -1, 1, 0, 2, 22.1688),
])
pad5 = doc.addObject("PartDesign::Pad", "Pad004")
body.addObject(pad5)
pad5.Profile = sketch15
pad5.Length = 45
pad5.Reversed = True

# Sketch on XZ plane
sketch16 = doc.addObject("Sketcher::SketchObject", "Sketch015")
body.addObject(sketch16)
sketch16.AttachmentSupport = (doc.XZ_Plane, [""])
sketch16.MapMode = "FlatFace"
sketch16.AttachmentOffset = App.Placement(App.Vector(0, 0, 92.8312), App.Rotation())
sketch16.addGeometry([
    Part.LineSegment(App.Vector(75, 35.5, 0), App.Vector(75, 40, 0)),  # 0
    Part.LineSegment(App.Vector(75, 40, 0), App.Vector(85, 40, 0)),  # 1
    Part.LineSegment(App.Vector(85, 40, 0), App.Vector(85, 35.5, 0)),  # 2
    Part.LineSegment(App.Vector(85, 35.5, 0), App.Vector(75, 35.5, 0)),  # 3
    Part.LineSegment(App.Vector(-85, 40, 0), App.Vector(-75, 40, 0)),  # 4
    Part.LineSegment(App.Vector(-75, 40, 0), App.Vector(-75, 35.5, 0)),  # 5
    Part.LineSegment(App.Vector(-75, 35.5, 0), App.Vector(-85, 35.5, 0)),  # 6
    Part.LineSegment(App.Vector(-85, 35.5, 0), App.Vector(-85, 40, 0)),  # 7
], False)
sketch16.addConstraint([
    Sketcher.Constraint("Coincident", 0, 2, 1, 1),
    Sketcher.Constraint("Coincident", 1, 2, 2, 1),
    Sketcher.Constraint("Coincident", 2, 2, 3, 1),
    Sketcher.Constraint("Coincident", 3, 2, 0, 1),
    Sketcher.Constraint("Coincident", 4, 2, 5, 1),
    Sketcher.Constraint("Coincident", 5, 2, 6, 1),
    Sketcher.Constraint("Coincident", 6, 2, 7, 1),
    Sketcher.Constraint("Coincident", 7, 2, 4, 1),
    Sketcher.Constraint("Vertical", 0),
    Sketcher.Constraint("Horizontal", 1),
    Sketcher.Constraint("Vertical", 2),
    Sketcher.Constraint("Horizontal", 3),
    Sketcher.Constraint("Horizontal", 4),
    Sketcher.Constraint("Vertical", 5),
    Sketcher.Constraint("Horizontal", 6),
    Sketcher.Constraint("Vertical", 7),
    Sketcher.Constraint("Symmetric", 0, 2, 4, 2, -2),
    Sketcher.Constraint("Symmetric", 2, 2, 6, 2, -2),
    Sketcher.Constraint("DistanceX", 1, 1, 1, 2, 10.0),
    Sketcher.Constraint("DistanceY", 0, 1, 0, 2, 4.5),
    Sketcher.Constraint("DistanceX", -1, 1, 0, 2, 75.0),
    Sketcher.Constraint("DistanceY", -1, 1, 0, 2, 40.0),
])
pocket11 = doc.addObject("PartDesign::Pocket", "Pocket010")
body.addObject(pocket11)
pocket11.Profile = sketch16
pocket11.Type = "ThroughAll"

# Sketch on YZ plane
sketch17 = doc.addObject("Sketcher::SketchObject", "Sketch016")
body.addObject(sketch17)
sketch17.AttachmentSupport = (doc.YZ_Plane, [""])
sketch17.MapMode = "FlatFace"
sketch17.AttachmentOffset = App.Placement(App.Vector(0, 0, -85), App.Rotation())
sketch17.addGeometry([
    Part.LineSegment(App.Vector(40, 36, 0), App.Vector(40, 30, 0)),
    Part.LineSegment(App.Vector(40, 30, 0), App.Vector(72, 30, 0)),
    Part.LineSegment(App.Vector(72, 30, 0), App.Vector(72, 36, 0)),
    Part.LineSegment(App.Vector(72, 36, 0), App.Vector(40, 36, 0)),
], False)
sketch17.addConstraint([
    Sketcher.Constraint("Coincident", 0, 2, 1, 1),
    Sketcher.Constraint("Coincident", 1, 2, 2, 1),
    Sketcher.Constraint("Coincident", 2, 2, 3, 1),
    Sketcher.Constraint("Coincident", 3, 2, 0, 1),
    Sketcher.Constraint("Vertical", 0),
    Sketcher.Constraint("Horizontal", 1),
    Sketcher.Constraint("Vertical", 2),
    Sketcher.Constraint("Horizontal", 3),
    Sketcher.Constraint("DistanceX", 1, 1, 1, 2, 32.0),
    Sketcher.Constraint("DistanceY", 0, 2, 0, 1, 5.5),
    Sketcher.Constraint("DistanceY", -1, 1, 0, 2, 30.0),
    Sketcher.Constraint("DistanceX", -1, 1, 0, 2, 40.1688),
])
pocket12 = doc.addObject("PartDesign::Pocket", "Pocket011")
body.addObject(pocket12)
pocket12.Profile = sketch17
pocket12.Length = 55
pocket12.Reversed = True

# Sketch on YZ plane
sketch18 = doc.addObject("Sketcher::SketchObject", "Sketch017")
body.addObject(sketch18)
sketch18.AttachmentSupport = (doc.YZ_Plane, [""])
sketch18.MapMode = "FlatFace"
sketch18.AttachmentOffset = App.Placement(App.Vector(0, 0, 85), App.Rotation())
sketch18.addGeometry([
    Part.Circle(App.Vector(47.2, 50, 0), App.Vector(0, 0, 1), 11.5),
    Part.Circle(App.Vector(47.2, 50, 0), App.Vector(0, 0, 1), 3),
], False)
sketch18.addConstraint([
    Sketcher.Constraint("Coincident", 1, 3, 0, 3),
    Sketcher.Constraint("Diameter", 0, 23.0),
    Sketcher.Constraint("Diameter", 1, 6.0),
    Sketcher.Constraint("DistanceY", -1, 1, 0, 3, 50.0),
    Sketcher.Constraint("DistanceX", -1, 1, 0, 3, 47.1688),
])
pocket13 = doc.addObject("PartDesign::Pocket", "Pocket012")
body.addObject(pocket13)
pocket13.Profile = sketch18
pocket13.Type = "ThroughAll"
pocket13.Reversed = True

# Sketch on YZ plane
sketch19 = doc.addObject("Sketcher::SketchObject", "Sketch018")
body.addObject(sketch19)
sketch19.AttachmentSupport = (doc.YZ_Plane, [""])
sketch19.MapMode = "FlatFace"
sketch19.AttachmentOffset = App.Placement(App.Vector(0, 0, 125), App.Rotation())
sketch19.addGeometry([
    Part.Circle(App.Vector(29.7, 50, 0), App.Vector(0, 0, 1), 2.5),
    Part.Circle(App.Vector(55.9, 34.8, 0), App.Vector(0, 0, 1), 2.5),
    Part.Circle(App.Vector(55.9, 65.2, 0), App.Vector(0, 0, 1), 2.5),
], False)
sketch19.addConstraint([
    Sketcher.Constraint("Equal", 0, 1),
    Sketcher.Constraint("Equal", 1, 2),
    Sketcher.Constraint("Vertical", 1, 3, 2, 3),
    Sketcher.Constraint("Diameter", 0, 5.0),
    Sketcher.Constraint("DistanceY", -1, 1, 0, 3, 50.0),
    Sketcher.Constraint("DistanceX", 0, 3, 1, 3, 26.25),
    Sketcher.Constraint("DistanceX", -1, 1, 0, 3, 29.6688),
    Sketcher.Constraint("DistanceY", -1, 1, 1, 3, 34.8446),
    Sketcher.Constraint("DistanceY", -1, 1, 2, 3, 65.1554),
])
pocket14 = doc.addObject("PartDesign::Pocket", "Pocket013")
body.addObject(pocket14)
pocket14.Profile = sketch19
pocket14.Length = 35

# Sketch on XY plane
sketch20 = doc.addObject("Sketcher::SketchObject", "Sketch019")
body.addObject(sketch20)
sketch20.AttachmentSupport = (doc.XY_Plane, [""])
sketch20.MapMode = "FlatFace"
sketch20.addGeometry([
    Part.Circle(App.Vector(0, -67.8, 0), App.Vector(0, 0, 1), 10),
    Part.Circle(App.Vector(0, -67.8, 0), App.Vector(0, 0, 1), 4),
], False)
sketch20.addConstraint([
    Sketcher.Constraint("Coincident", 1, 3, 0, 3),
    Sketcher.Constraint("PointOnObject", 0, 3, -2),
    Sketcher.Constraint("Diameter", 0, 20.0),
    Sketcher.Constraint("Diameter", 1, 8.0),
    Sketcher.Constraint("DistanceY", 0, 3, -1, 1, 67.8312),
])
pocket15 = doc.addObject("PartDesign::Pocket", "Pocket014")
body.addObject(pocket15)
pocket15.Profile = sketch20
pocket15.Length = 3
pocket15.Reversed = True

# Sketch on YZ plane
sketch21 = doc.addObject("Sketcher::SketchObject", "Sketch020")
body.addObject(sketch21)
sketch21.AttachmentSupport = (doc.YZ_Plane, [""])
sketch21.MapMode = "FlatFace"
sketch21.AttachmentOffset = App.Placement(App.Vector(0, 0, -85), App.Rotation())
sketch21.addGeometry(Part.Circle(App.Vector(40, 50, 0), App.Vector(0, 0, 1), 20), False)
sketch21.addConstraint([
    Sketcher.Constraint("Diameter", 0, 40.0),
    Sketcher.Constraint("DistanceY", -1, 1, 0, 3, 50.0),
    Sketcher.Constraint("DistanceX", -1, 1, 0, 3, 40.1688),
])
pad6 = doc.addObject("PartDesign::Pad", "Pad005")
body.addObject(pad6)
pad6.Profile = sketch21
pad6.Length = 40
pad6.Reversed = True

# Sketch on YZ plane
sketch22 = doc.addObject("Sketcher::SketchObject", "Sketch021")
body.addObject(sketch22)
sketch22.AttachmentSupport = (doc.YZ_Plane, [""])
sketch22.MapMode = "FlatFace"
sketch22.AttachmentOffset = App.Placement(App.Vector(0, 0, 85), App.Rotation())
sketch22.addGeometry(Part.Circle(App.Vector(47, 50, 0), App.Vector(0, 0, 1), 12), False)
sketch22.addConstraint([
    Sketcher.Constraint("Diameter", 0, 23.0),
    Sketcher.Constraint("DistanceY", -1, 1, 0, 3, 50.0),
    Sketcher.Constraint("DistanceX", -1, 1, 0, 3, 47.1688),
])
pad7 = doc.addObject("PartDesign::Pad", "Pad006")
body.addObject(pad7)
pad7.Profile = sketch22
pad7.Length = 40

# Sketch on YZ plane
sketch23 = doc.addObject("Sketcher::SketchObject", "Sketch022")
body.addObject(sketch23)
sketch23.AttachmentSupport = (doc.YZ_Plane, [""])
sketch23.MapMode = "FlatFace"
sketch23.AttachmentOffset = App.Placement(App.Vector(0, 0, 125), App.Rotation())
sketch23.addGeometry([
    Part.Circle(App.Vector(55.9, 65.2, 0), App.Vector(0, 0, 1), 2.5),
    Part.Circle(App.Vector(29.7, 50, 0), App.Vector(0, 0, 1), 2.5),
    Part.Circle(App.Vector(55.9, 34.8, 0), App.Vector(0, 0, 1), 2.5),
], False)
sketch23.addConstraint([
    Sketcher.Constraint("Equal", 0, 1),
    Sketcher.Constraint("Equal", 1, 2),
    Sketcher.Constraint("Vertical", 0, 3, 2, 3),
    Sketcher.Constraint("Diameter", 0, 5.0),
    Sketcher.Constraint("DistanceY", -1, 1, 1, 3, 50.0),
    Sketcher.Constraint("DistanceX", 1, 3, 0, 3, 26.25),
    Sketcher.Constraint("DistanceX", -1, 1, 0, 3, 55.9188),
    Sketcher.Constraint("DistanceY", -1, 1, 0, 3, 65.1554),
    Sketcher.Constraint("DistanceY", -1, 1, 2, 3, 34.8446),
])
pad8 = doc.addObject("PartDesign::Pad", "Pad007")
body.addObject(pad8)
pad8.Profile = sketch23
pad8.Length = 40
pad8.Reversed = True

# Sketch on YZ plane
sketch24 = doc.addObject("Sketcher::SketchObject", "Sketch023")
body.addObject(sketch24)
sketch24.AttachmentSupport = (doc.YZ_Plane, [""])
sketch24.MapMode = "FlatFace"
sketch24.AttachmentOffset = App.Placement(App.Vector(0, 0, -125), App.Rotation())
sketch24.addGeometry([
    Part.LineSegment(App.Vector(101, 0, 0), App.Vector(43, 0, 0)),  # 0
    Part.LineSegment(App.Vector(43, 0, 0), App.Vector(14, 50, 0)),  # 1
    Part.LineSegment(App.Vector(14, 50, 0), App.Vector(43, 100, 0)),  # 2
    Part.LineSegment(App.Vector(43, 100, 0), App.Vector(101, 100, 0)),  # 3
    Part.LineSegment(App.Vector(101, 100, 0), App.Vector(130, 50, 0)),  # 4
    Part.LineSegment(App.Vector(130, 50, 0), App.Vector(101, 0, 0)),  # 5
], False)
sketch24.addConstraint([
    Sketcher.Constraint("Coincident", 0, 2, 1, 1),
    Sketcher.Constraint("Coincident", 1, 2, 2, 1),
    Sketcher.Constraint("Coincident", 2, 2, 3, 1),
    Sketcher.Constraint("Coincident", 3, 2, 4, 1),
    Sketcher.Constraint("Coincident", 4, 2, 5, 1),
    Sketcher.Constraint("Coincident", 5, 2, 0, 1),
    Sketcher.Constraint("Horizontal", 0),
    Sketcher.Constraint("Horizontal", 3),
    Sketcher.Constraint("PointOnObject", 0, 2, -1),
    Sketcher.Constraint("Parallel", 1, 4),
    Sketcher.Constraint("Parallel", 2, 5),
    Sketcher.Constraint("Horizontal", 1, 2, 4, 2),
    Sketcher.Constraint("Vertical", 0, 2, 2, 2),
    Sketcher.Constraint("Vertical", 3, 2, 5, 2),
    Sketcher.Constraint("Angle", 1, Q("120 deg")),
    Sketcher.Constraint("DistanceY", -1, 1, 1, 2, 50.0),
    Sketcher.Constraint("DistanceX", 0, 2, 0, 1, 57.735),
    Sketcher.Constraint("DistanceX", -1, 1, 0, 2, 43.3013),
])
pocket16 = doc.addObject("PartDesign::Pocket", "Pocket015")
body.addObject(pocket16)
pocket16.Profile = sketch24
pocket16.Length = 200
pocket16.Reversed = True

# Sketch on YZ plane
sketch25 = doc.addObject("Sketcher::SketchObject", "Sketch024")
body.addObject(sketch25)
sketch25.AttachmentSupport = (doc.YZ_Plane, [""])
sketch25.MapMode = "FlatFace"
sketch25.AttachmentOffset = App.Placement(App.Vector(0, 0, 75), App.Rotation())
sketch25.addGeometry([
    Part.LineSegment(App.Vector(14, 50, 0), App.Vector(43, 100, 0)),  # 0
    Part.LineSegment(App.Vector(43, 100, 0), App.Vector(101, 100, 0)),  # 1
    Part.LineSegment(App.Vector(101, 100, 0), App.Vector(130, 50, 0)),  # 2
    Part.LineSegment(App.Vector(130, 50, 0), App.Vector(101, 0, 0)),  # 3
    Part.LineSegment(App.Vector(101, 0, 0), App.Vector(43, 0, 0)),  # 4
    Part.LineSegment(App.Vector(43, 0, 0), App.Vector(14, 50, 0)),  # 5
], False)
sketch25.addConstraint([
    Sketcher.Constraint("Coincident", 0, 2, 1, 1),
    Sketcher.Constraint("Coincident", 1, 2, 2, 1),
    Sketcher.Constraint("Coincident", 2, 2, 3, 1),
    Sketcher.Constraint("Coincident", 3, 2, 4, 1),
    Sketcher.Constraint("Coincident", 4, 2, 5, 1),
    Sketcher.Constraint("Coincident", 5, 2, 0, 1),
    Sketcher.Constraint("Horizontal", 1),
    Sketcher.Constraint("Horizontal", 4),
    Sketcher.Constraint("PointOnObject", 3, 2, -1),
    Sketcher.Constraint("Parallel", 0, 3),
    Sketcher.Constraint("Parallel", 2, 5),
    Sketcher.Constraint("Horizontal", 2, 2, 5, 2),
    Sketcher.Constraint("Vertical", 1, 2, 3, 2),
    Sketcher.Constraint("Vertical", 0, 2, 4, 2),
    Sketcher.Constraint("Angle", 0, Q("60 deg")),
    Sketcher.Constraint("DistanceY", -1, 1, 0, 2, 100.0),
    Sketcher.Constraint("DistanceX", 1, 1, 1, 2, 57.735),
    Sketcher.Constraint("DistanceX", -1, 1, 0, 2, 43.3013),
])
pad9 = doc.addObject("PartDesign::Pad", "Pad008")
body.addObject(pad9)
pad9.Profile = sketch25
pad9.Length = 50

# Sketch on YZ plane
sketch26 = doc.addObject("Sketcher::SketchObject", "Sketch025")
body.addObject(sketch26)
sketch26.AttachmentSupport = (doc.YZ_Plane, [""])
sketch26.MapMode = "FlatFace"
sketch26.AttachmentOffset = App.Placement(App.Vector(0, 0, 125), App.Rotation())
sketch26.addGeometry([
    Part.Circle(App.Vector(21.2, 50, 0), App.Vector(0, 0, 1), 2.5),  # 0
    Part.Circle(App.Vector(46.7, 5.8, 0), App.Vector(0, 0, 1), 2.5),  # 1
    Part.Circle(App.Vector(97.7, 5.8, 0), App.Vector(0, 0, 1), 2.5),  # 2
    Part.Circle(App.Vector(123.2, 50, 0), App.Vector(0, 0, 1), 2.5),  # 3
    Part.Circle(App.Vector(97.7, 94.2, 0), App.Vector(0, 0, 1), 2.5),  # 4
    Part.Circle(App.Vector(46.7, 94.2, 0), App.Vector(0, 0, 1), 2.5),  # 5
], False)
sketch26.addConstraint([
    Sketcher.Constraint("Equal", 0, 1),
    Sketcher.Constraint("Equal", 1, 2),
    Sketcher.Constraint("Equal", 2, 3),
    Sketcher.Constraint("Equal", 3, 4),
    Sketcher.Constraint("Equal", 4, 5),
    Sketcher.Constraint("Horizontal", 1, 3, 2, 3),
    Sketcher.Constraint("Horizontal", 0, 3, 3, 3),
    Sketcher.Constraint("Horizontal", 4, 3, 5, 3),
    Sketcher.Constraint("Vertical", 2, 3, 4, 3),
    Sketcher.Constraint("Vertical", 1, 3, 5, 3),
    Sketcher.Constraint("Diameter", 0, 5.0),
    Sketcher.Constraint("DistanceX", 1, 3, 2, 3, 51.0),
    Sketcher.Constraint("DistanceY", -1, 1, 0, 3, 50.0),
    Sketcher.Constraint("DistanceX", 0, 3, 3, 3, 102.0),
    Sketcher.Constraint("DistanceX", 0, 3, 1, 3, 25.5),
    Sketcher.Constraint("DistanceX", -1, 1, 0, 3, 21.1688),
    Sketcher.Constraint("DistanceY", -1, 1, 1, 3, 5.8327),
    Sketcher.Constraint("DistanceY", -1, 1, 4, 3, 94.1673),
])
pocket17 = doc.addObject("PartDesign::Pocket", "Pocket016")
body.addObject(pocket17)
pocket17.Profile = sketch26
pocket17.Type = "ThroughAll"

# Sketch on YZ plane
sketch27 = doc.addObject("Sketcher::SketchObject", "Sketch026")
body.addObject(sketch27)
sketch27.AttachmentSupport = (doc.YZ_Plane, [""])
sketch27.MapMode = "FlatFace"
sketch27.AttachmentOffset = App.Placement(App.Vector(0, 0, -125), App.Rotation())
sketch27.addGeometry([
    Part.LineSegment(App.Vector(14, 0, 0), App.Vector(14, 50, 0)),  # 0
    Part.LineSegment(App.Vector(14, 50, 0), App.Vector(43, 0, 0)),  # 1
    Part.LineSegment(App.Vector(43, 0, 0), App.Vector(14, 0, 0)),  # 2
    Part.LineSegment(App.Vector(14, 50, 0), App.Vector(14, 100, 0)),  # 3
    Part.LineSegment(App.Vector(14, 100, 0), App.Vector(43, 100, 0)),  # 4
    Part.LineSegment(App.Vector(43, 100, 0), App.Vector(14, 50, 0)),  # 5
], False)
sketch27.addConstraint([
    Sketcher.Constraint("Coincident", 0, 2, 1, 1),
    Sketcher.Constraint("Coincident", 1, 2, 2, 1),
    Sketcher.Constraint("Coincident", 2, 2, 0, 1),
    Sketcher.Constraint("Coincident", 3, 2, 4, 1),
    Sketcher.Constraint("Coincident", 4, 2, 5, 1),
    Sketcher.Constraint("Coincident", 5, 2, 3, 1),
    Sketcher.Constraint("Vertical", 0),
    Sketcher.Constraint("Horizontal", 2),
    Sketcher.Constraint("Vertical", 3),
    Sketcher.Constraint("Horizontal", 4),
    Sketcher.Constraint("Coincident", 5, 2, 0, 2),
    Sketcher.Constraint("PointOnObject", 1, 2, -1),
    Sketcher.Constraint("Vertical", 1, 2, 4, 2),
    Sketcher.Constraint("Equal", 0, 3),
    Sketcher.Constraint("DistanceY", 0, 1, 0, 2, 50.0),
    Sketcher.Constraint("Angle", 1, Q("-60 deg")),
    Sketcher.Constraint("DistanceX", -1, 1, 0, 2, 14.4337),
])
pocket18 = doc.addObject("PartDesign::Pocket", "Pocket017")
body.addObject(pocket18)
pocket18.Profile = sketch27
pocket18.Length = 80
pocket18.Reversed = True

doc.recompute()
